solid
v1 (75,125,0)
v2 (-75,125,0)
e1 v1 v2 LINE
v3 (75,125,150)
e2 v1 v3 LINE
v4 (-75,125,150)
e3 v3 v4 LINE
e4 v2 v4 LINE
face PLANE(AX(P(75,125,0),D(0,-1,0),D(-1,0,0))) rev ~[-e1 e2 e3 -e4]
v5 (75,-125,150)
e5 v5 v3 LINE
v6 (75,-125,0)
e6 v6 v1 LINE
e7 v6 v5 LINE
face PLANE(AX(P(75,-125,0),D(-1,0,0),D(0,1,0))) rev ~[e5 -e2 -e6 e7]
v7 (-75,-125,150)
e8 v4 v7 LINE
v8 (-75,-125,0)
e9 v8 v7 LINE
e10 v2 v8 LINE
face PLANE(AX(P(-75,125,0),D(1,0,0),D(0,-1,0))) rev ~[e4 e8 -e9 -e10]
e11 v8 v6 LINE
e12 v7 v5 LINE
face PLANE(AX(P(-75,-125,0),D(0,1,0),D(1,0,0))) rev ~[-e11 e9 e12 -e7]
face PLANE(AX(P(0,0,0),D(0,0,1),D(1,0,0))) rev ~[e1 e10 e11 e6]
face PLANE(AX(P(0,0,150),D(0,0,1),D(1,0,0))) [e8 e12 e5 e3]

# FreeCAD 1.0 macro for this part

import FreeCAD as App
import Part
import Sketcher


def add_polygon(sketch, points):
    """Adds a closed chain of lines whose ends are joined by coincident constraints."""
    first, n = sketch.GeometryCount, len(points)
    for a, b in zip(points, points[1:] + points[:1]):
        sketch.addGeometry(Part.LineSegment(App.Vector(*a, 0), App.Vector(*b, 0)), False)
    for i in range(n):
        sketch.addConstraint(Sketcher.Constraint("Coincident", first + i, 2, first + (i + 1) % n, 1))

doc = App.newDocument("Part")
body = doc.addObject("PartDesign::Body", "Body")

sketch1 = doc.addObject("Sketcher::SketchObject", "Sketch")
body.addObject(sketch1)
sketch1.AttachmentSupport = (doc.XY_Plane, [""])
sketch1.MapMode = "FlatFace"
add_polygon(sketch1, [(75, 125), (-75, 125), (-75, -125), (75, -125)])
sketch1.addConstraint(Sketcher.Constraint("Horizontal", 0))
sketch1.addConstraint(Sketcher.Constraint("Vertical", 1))
sketch1.addConstraint(Sketcher.Constraint("Horizontal", 2))
sketch1.addConstraint(Sketcher.Constraint("Vertical", 3))
sketch1.addConstraint(Sketcher.Constraint("Symmetric", 0, 2, 2, 2, -1, 1))
sketch1.addConstraint(Sketcher.Constraint("DistanceX", 0, 2, 0, 1, 150.0))
sketch1.addConstraint(Sketcher.Constraint("DistanceY", 1, 2, 1, 1, 250.0))
pad1 = doc.addObject("PartDesign::Pad", "Pad")
body.addObject(pad1)
pad1.Profile = sketch1
pad1.Length = 150

doc.recompute()
